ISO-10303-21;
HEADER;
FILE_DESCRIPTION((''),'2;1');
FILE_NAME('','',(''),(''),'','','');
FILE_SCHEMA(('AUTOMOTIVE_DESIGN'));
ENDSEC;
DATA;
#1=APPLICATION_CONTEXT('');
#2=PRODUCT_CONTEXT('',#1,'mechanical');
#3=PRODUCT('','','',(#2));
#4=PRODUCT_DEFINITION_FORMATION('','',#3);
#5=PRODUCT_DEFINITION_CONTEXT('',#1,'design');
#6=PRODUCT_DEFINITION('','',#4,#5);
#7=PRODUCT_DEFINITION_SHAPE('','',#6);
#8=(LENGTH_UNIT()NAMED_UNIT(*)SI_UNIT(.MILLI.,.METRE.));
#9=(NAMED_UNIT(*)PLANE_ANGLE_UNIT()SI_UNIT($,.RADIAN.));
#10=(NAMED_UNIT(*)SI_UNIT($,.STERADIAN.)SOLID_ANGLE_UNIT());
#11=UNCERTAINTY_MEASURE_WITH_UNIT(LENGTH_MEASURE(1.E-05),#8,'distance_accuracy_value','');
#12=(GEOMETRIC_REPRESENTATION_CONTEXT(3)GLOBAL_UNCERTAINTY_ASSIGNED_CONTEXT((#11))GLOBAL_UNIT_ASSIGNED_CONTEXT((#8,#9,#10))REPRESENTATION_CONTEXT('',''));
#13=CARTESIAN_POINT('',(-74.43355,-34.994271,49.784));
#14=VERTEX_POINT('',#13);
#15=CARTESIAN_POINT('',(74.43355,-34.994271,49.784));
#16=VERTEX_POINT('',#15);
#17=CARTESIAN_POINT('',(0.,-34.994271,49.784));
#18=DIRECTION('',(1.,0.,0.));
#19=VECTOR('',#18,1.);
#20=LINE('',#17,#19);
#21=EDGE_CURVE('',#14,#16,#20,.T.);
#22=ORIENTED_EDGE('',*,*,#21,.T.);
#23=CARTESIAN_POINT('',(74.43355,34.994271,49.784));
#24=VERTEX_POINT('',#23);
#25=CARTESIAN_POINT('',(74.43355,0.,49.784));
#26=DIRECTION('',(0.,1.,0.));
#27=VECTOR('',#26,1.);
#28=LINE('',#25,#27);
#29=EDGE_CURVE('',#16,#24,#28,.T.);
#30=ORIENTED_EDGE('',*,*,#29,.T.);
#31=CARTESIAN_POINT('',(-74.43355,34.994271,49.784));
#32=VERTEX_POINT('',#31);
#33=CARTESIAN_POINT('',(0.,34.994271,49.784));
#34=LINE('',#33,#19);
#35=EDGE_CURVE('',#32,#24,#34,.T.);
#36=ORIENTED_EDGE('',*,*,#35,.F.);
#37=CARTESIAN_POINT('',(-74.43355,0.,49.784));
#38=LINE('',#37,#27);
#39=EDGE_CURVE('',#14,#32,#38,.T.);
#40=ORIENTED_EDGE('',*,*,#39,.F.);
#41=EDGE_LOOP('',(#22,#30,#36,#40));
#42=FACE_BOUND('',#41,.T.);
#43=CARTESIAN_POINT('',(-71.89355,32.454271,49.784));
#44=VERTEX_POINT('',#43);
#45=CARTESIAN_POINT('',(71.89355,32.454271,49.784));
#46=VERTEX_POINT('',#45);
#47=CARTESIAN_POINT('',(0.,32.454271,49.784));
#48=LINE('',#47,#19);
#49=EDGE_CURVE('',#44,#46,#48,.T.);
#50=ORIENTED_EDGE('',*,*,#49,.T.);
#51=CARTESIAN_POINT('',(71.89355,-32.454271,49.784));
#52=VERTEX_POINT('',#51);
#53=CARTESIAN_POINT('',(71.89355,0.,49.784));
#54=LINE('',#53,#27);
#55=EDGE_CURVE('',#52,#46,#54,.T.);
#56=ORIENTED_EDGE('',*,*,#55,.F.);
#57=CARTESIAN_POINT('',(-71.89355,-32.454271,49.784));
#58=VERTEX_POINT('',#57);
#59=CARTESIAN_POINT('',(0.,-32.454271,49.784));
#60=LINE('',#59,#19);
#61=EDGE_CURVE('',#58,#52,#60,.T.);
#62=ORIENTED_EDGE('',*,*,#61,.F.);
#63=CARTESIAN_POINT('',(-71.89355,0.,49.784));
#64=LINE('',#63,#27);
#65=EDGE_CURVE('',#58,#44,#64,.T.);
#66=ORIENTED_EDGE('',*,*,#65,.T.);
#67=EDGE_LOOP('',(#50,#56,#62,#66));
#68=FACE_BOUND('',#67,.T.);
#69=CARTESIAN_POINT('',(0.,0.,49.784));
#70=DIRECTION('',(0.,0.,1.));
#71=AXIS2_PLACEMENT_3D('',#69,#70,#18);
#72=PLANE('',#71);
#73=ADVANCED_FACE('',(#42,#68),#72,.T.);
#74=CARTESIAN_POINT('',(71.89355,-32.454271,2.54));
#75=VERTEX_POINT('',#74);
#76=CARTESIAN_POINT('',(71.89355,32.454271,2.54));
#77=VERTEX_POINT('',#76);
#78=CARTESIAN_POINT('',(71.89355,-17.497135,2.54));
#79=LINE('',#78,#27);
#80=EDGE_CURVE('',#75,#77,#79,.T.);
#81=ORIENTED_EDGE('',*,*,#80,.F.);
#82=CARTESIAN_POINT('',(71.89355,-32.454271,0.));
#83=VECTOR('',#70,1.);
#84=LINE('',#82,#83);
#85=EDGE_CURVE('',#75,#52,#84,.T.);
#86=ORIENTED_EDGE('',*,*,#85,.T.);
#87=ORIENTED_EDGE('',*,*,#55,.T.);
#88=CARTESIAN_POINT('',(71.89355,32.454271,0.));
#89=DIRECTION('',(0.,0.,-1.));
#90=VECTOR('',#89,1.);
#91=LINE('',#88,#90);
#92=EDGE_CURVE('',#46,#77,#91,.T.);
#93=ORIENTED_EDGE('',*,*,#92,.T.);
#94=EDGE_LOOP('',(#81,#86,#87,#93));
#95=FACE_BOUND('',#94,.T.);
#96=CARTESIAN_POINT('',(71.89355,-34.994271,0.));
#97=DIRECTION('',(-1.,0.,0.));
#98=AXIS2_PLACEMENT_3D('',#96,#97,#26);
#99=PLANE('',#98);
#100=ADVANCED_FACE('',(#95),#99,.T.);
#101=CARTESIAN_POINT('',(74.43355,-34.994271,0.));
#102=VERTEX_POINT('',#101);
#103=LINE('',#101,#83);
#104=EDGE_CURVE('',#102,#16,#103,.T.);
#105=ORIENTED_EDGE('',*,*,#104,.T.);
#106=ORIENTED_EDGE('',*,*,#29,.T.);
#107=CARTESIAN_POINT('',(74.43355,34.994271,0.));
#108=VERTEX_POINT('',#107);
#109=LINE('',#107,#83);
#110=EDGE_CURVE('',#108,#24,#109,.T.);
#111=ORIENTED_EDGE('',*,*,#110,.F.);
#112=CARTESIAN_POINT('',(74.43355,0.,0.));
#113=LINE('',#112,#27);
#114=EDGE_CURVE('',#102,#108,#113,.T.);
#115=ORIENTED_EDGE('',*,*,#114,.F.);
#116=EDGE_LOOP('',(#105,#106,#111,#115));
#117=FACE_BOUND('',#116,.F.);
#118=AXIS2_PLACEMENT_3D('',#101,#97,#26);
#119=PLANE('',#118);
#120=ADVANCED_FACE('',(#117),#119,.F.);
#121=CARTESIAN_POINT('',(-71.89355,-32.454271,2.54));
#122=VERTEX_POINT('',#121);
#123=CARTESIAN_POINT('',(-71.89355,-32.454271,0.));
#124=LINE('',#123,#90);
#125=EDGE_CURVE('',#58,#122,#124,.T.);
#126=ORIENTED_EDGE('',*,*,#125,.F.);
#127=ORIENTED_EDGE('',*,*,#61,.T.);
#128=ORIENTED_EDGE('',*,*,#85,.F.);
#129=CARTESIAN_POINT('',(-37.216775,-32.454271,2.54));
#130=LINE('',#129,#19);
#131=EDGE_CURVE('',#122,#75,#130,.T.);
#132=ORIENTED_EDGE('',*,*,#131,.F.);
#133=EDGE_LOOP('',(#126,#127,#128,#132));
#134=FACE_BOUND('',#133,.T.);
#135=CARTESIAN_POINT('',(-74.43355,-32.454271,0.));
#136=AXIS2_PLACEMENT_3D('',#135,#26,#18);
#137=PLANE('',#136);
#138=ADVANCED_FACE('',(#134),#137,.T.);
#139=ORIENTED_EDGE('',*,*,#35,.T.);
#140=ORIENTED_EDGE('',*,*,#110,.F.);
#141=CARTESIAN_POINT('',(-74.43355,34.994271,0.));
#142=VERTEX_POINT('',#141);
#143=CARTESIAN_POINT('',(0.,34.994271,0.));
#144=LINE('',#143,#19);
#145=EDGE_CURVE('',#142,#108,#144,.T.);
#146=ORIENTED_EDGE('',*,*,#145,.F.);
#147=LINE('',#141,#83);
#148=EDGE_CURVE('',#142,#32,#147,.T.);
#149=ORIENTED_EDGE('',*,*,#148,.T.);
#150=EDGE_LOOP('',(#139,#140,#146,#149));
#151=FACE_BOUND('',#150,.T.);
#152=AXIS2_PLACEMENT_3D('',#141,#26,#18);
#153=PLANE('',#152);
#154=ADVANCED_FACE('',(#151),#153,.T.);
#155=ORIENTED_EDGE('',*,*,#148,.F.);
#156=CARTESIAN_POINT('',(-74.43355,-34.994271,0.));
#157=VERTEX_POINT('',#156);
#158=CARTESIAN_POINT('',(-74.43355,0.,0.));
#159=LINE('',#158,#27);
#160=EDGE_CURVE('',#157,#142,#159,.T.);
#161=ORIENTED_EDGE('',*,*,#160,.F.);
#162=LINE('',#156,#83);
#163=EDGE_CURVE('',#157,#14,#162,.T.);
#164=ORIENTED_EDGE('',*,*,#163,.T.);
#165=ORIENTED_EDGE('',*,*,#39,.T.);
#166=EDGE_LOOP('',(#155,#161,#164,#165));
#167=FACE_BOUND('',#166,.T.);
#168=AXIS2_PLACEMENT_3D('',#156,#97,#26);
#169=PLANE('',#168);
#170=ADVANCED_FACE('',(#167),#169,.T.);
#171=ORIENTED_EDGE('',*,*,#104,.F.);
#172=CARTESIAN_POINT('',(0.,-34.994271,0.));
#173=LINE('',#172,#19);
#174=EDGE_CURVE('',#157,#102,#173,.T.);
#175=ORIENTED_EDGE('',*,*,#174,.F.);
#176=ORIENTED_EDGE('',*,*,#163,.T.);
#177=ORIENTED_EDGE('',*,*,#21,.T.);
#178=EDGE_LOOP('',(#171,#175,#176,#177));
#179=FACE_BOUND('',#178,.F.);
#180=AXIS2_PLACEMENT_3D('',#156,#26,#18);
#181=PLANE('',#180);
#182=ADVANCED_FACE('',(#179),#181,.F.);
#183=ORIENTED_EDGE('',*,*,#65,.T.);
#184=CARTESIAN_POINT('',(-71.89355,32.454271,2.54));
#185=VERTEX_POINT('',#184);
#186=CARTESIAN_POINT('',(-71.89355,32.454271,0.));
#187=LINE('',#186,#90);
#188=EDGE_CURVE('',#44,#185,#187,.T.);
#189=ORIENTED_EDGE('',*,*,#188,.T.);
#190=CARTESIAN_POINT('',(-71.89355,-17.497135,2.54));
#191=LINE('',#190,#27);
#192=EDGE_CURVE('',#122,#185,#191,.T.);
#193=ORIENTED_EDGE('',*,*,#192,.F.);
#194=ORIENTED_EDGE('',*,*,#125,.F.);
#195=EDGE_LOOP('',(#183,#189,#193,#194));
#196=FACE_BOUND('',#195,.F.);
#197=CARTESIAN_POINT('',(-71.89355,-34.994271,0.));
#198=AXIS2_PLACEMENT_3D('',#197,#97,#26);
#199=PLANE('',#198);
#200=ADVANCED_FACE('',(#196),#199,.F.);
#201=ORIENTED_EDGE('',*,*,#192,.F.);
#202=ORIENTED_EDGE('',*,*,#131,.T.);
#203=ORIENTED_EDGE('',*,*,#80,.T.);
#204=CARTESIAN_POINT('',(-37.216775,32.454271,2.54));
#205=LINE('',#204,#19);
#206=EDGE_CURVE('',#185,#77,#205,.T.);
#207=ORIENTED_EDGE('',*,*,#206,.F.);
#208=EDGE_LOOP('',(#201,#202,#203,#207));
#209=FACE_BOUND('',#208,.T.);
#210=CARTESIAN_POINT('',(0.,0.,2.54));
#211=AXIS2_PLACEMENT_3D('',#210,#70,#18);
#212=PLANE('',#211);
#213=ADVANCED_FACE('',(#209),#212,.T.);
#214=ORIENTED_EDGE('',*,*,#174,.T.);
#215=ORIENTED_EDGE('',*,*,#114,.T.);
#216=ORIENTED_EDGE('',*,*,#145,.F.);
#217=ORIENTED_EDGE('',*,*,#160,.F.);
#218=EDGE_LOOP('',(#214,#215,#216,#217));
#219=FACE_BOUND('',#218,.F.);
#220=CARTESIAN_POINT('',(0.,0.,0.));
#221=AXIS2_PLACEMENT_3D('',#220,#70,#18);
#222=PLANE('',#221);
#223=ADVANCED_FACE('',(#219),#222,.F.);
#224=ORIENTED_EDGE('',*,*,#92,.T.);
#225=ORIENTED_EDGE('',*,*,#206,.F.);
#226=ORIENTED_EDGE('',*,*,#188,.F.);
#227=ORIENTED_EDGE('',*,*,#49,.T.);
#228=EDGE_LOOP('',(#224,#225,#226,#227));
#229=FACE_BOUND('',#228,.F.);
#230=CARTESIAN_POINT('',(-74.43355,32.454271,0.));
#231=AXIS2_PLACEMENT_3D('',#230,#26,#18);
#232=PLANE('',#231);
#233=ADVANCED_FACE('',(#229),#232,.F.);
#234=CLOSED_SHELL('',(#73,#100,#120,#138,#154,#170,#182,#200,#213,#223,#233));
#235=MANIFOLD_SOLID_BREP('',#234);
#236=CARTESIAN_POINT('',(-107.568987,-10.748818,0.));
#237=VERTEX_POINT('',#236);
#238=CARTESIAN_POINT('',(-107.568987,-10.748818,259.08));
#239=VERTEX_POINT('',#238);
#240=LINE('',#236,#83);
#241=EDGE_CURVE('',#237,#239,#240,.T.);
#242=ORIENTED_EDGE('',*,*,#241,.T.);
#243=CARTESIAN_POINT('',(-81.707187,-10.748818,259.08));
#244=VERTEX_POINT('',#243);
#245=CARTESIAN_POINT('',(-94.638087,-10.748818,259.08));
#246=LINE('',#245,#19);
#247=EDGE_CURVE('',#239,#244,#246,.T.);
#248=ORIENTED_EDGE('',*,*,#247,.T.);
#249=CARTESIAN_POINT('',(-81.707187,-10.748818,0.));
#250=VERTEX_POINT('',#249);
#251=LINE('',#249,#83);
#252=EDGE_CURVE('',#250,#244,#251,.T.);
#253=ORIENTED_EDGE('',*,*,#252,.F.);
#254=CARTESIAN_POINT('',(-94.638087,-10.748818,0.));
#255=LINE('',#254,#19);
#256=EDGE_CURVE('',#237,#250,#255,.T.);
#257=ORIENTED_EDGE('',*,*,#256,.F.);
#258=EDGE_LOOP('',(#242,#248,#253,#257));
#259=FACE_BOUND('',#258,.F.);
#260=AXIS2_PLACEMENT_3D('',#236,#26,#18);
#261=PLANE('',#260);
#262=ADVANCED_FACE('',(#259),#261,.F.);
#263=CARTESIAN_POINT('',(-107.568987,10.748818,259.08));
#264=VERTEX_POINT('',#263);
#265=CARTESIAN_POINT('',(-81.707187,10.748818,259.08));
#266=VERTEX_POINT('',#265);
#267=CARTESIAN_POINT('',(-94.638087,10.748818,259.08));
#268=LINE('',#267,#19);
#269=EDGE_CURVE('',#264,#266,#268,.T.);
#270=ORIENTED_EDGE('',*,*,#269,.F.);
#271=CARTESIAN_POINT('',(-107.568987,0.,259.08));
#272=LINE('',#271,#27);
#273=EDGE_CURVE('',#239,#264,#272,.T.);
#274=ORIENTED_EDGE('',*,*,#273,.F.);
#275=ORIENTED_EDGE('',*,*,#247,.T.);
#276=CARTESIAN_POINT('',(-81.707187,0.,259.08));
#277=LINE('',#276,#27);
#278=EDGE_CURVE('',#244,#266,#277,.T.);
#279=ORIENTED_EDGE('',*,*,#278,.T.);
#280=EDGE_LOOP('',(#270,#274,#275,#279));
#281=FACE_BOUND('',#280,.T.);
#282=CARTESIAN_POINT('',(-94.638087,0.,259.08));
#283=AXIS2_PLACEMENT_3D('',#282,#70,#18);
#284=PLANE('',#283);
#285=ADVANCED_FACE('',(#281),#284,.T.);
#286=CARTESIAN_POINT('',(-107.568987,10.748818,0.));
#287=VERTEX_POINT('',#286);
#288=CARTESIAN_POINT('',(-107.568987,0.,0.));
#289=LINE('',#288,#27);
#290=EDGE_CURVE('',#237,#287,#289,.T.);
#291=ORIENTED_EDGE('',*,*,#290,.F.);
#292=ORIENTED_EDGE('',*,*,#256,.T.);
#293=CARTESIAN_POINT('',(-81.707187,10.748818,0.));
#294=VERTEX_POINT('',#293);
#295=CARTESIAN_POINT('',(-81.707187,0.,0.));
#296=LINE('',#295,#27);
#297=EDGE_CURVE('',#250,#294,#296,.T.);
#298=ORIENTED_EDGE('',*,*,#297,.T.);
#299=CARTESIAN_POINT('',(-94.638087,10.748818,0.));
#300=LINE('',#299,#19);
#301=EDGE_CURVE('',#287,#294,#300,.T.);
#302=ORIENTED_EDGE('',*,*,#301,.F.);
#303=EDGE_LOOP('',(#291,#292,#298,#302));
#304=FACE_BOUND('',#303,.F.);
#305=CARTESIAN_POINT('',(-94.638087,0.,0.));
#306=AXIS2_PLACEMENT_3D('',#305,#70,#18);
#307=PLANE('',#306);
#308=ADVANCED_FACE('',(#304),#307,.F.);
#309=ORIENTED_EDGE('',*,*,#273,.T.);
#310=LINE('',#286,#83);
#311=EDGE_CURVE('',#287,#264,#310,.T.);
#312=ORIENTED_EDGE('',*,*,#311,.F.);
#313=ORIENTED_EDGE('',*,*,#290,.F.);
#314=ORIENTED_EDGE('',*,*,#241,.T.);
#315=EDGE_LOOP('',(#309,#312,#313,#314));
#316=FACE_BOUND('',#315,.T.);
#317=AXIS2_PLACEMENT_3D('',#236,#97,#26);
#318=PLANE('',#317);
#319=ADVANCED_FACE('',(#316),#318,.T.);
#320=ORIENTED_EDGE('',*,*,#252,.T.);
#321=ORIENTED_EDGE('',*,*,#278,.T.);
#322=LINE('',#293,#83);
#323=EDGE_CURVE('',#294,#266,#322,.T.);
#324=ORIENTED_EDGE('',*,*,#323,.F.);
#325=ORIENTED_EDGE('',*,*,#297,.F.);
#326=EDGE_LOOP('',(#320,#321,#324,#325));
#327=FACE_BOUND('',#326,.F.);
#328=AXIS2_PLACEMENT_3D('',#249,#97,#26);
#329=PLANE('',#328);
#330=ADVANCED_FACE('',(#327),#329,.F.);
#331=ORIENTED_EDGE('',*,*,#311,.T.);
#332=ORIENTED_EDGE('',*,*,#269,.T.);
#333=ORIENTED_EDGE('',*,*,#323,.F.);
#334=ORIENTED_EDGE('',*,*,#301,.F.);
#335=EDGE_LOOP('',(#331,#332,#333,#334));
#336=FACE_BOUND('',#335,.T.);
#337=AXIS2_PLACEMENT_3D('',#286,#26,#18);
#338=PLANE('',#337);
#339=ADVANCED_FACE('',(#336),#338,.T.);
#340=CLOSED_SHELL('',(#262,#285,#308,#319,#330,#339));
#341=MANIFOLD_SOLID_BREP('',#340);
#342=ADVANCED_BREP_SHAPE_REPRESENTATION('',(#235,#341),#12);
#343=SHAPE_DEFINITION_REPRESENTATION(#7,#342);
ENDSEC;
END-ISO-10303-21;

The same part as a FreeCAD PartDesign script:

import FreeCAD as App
import Part
import Sketcher
from FreeCAD import Vector
Q = App.Units.Quantity


def faces_at(feature, points):
    """Names of the faces that lie closest to the given points."""
    faces = feature.Shape.Faces
    near = lambda p: min(range(len(faces)), key=lambda i: faces[i].distToShape(Part.Vertex(*p))[0])
    return sorted({f"Face{near(p) + 1}" for p in points})

doc = App.newDocument("Part")
body = doc.addObject("PartDesign::Body", "Body")

# Sketch on XY plane
sketch1 = body.newObject("Sketcher::SketchObject", "Sketch")
sketch1.AttachmentSupport = (doc.getObject("XY_Plane"), [""])
sketch1.MapMode = "FlatFace"
sketch1.addGeometry([
    Part.LineSegment(Vector(-74.43355, 34.994271, 0), Vector(-74.43355, -34.994271, 0)),
    Part.LineSegment(Vector(-74.43355, -34.994271, 0), Vector(74.43355, -34.994271, 0)),
    Part.LineSegment(Vector(74.43355, -34.994271, 0), Vector(74.43355, 34.994271, 0)),
    Part.LineSegment(Vector(74.43355, 34.994271, 0), Vector(-74.43355, 34.994271, 0)),
], False)
sketch1.addConstraint([
    Sketcher.Constraint("Coincident", 0, 2, 1, 1),
    Sketcher.Constraint("Coincident", 1, 2, 2, 1),
    Sketcher.Constraint("Coincident", 2, 2, 3, 1),
    Sketcher.Constraint("Coincident", 3, 2, 0, 1),
    Sketcher.Constraint("Vertical", 0),
    Sketcher.Constraint("Horizontal", 1),
    Sketcher.Constraint("Vertical", 2),
    Sketcher.Constraint("Horizontal", 3),
    Sketcher.Constraint("Symmetric", 0, 2, 2, 2, -1, 1),
    Sketcher.Constraint("DistanceX", 1, 1, 1, 2, 148.8671),
    Sketcher.Constraint("DistanceY", 0, 2, 0, 1, 69.988542),
])
pad1 = body.newObject("PartDesign::Pad", "Pad")
pad1.Profile = sketch1
pad1.Length = Q("1.96 in")
doc.recompute()

thickness = body.newObject("PartDesign::Thickness", "Thickness")
thickness.Base = (pad1, faces_at(pad1, [(0, 0, 49.784)]))
thickness.Value = Q("0.1 in")
thickness.Reversed = True
thickness.Join = "Arc"
body2 = doc.addObject("PartDesign::Body", "Body001")

# Sketch on XY plane
sketch2 = body2.newObject("Sketcher::SketchObject", "Sketch001")
sketch2.AttachmentSupport = (doc.getObject("XY_Plane001"), [""])
sketch2.MapMode = "FlatFace"
sketch2.addGeometry([
    Part.LineSegment(Vector(-107.568987, 10.748818, 0), Vector(-107.568987, -10.748818, 0)),
    Part.LineSegment(Vector(-107.568987, -10.748818, 0), Vector(-81.707187, -10.748818, 0)),
    Part.LineSegment(Vector(-81.707187, -10.748818, 0), Vector(-81.707187, 10.748818, 0)),
    Part.LineSegment(Vector(-81.707187, 10.748818, 0), Vector(-107.568987, 10.748818, 0)),
], False)
sketch2.addConstraint([
    Sketcher.Constraint("Coincident", 0, 2, 1, 1),
    Sketcher.Constraint("Coincident", 1, 2, 2, 1),
    Sketcher.Constraint("Coincident", 2, 2, 3, 1),
    Sketcher.Constraint("Coincident", 3, 2, 0, 1),
    Sketcher.Constraint("Vertical", 0),
    Sketcher.Constraint("Horizontal", 1),
    Sketcher.Constraint("Vertical", 2),
    Sketcher.Constraint("Horizontal", 3),
    Sketcher.Constraint("DistanceX", 1, 1, 1, 2, 25.8618),
    Sketcher.Constraint("DistanceY", 0, 2, 0, 1, 21.497636),
    Sketcher.Constraint("DistanceX", 0, 2, -1, 1, 107.568987),
    Sketcher.Constraint("DistanceY", 0, 2, -1, 1, 10.748818),
])
pad2 = body2.newObject("PartDesign::Pad", "Pad001")
pad2.Profile = sketch2
pad2.Length = Q("10.2 in")

doc.recompute()
